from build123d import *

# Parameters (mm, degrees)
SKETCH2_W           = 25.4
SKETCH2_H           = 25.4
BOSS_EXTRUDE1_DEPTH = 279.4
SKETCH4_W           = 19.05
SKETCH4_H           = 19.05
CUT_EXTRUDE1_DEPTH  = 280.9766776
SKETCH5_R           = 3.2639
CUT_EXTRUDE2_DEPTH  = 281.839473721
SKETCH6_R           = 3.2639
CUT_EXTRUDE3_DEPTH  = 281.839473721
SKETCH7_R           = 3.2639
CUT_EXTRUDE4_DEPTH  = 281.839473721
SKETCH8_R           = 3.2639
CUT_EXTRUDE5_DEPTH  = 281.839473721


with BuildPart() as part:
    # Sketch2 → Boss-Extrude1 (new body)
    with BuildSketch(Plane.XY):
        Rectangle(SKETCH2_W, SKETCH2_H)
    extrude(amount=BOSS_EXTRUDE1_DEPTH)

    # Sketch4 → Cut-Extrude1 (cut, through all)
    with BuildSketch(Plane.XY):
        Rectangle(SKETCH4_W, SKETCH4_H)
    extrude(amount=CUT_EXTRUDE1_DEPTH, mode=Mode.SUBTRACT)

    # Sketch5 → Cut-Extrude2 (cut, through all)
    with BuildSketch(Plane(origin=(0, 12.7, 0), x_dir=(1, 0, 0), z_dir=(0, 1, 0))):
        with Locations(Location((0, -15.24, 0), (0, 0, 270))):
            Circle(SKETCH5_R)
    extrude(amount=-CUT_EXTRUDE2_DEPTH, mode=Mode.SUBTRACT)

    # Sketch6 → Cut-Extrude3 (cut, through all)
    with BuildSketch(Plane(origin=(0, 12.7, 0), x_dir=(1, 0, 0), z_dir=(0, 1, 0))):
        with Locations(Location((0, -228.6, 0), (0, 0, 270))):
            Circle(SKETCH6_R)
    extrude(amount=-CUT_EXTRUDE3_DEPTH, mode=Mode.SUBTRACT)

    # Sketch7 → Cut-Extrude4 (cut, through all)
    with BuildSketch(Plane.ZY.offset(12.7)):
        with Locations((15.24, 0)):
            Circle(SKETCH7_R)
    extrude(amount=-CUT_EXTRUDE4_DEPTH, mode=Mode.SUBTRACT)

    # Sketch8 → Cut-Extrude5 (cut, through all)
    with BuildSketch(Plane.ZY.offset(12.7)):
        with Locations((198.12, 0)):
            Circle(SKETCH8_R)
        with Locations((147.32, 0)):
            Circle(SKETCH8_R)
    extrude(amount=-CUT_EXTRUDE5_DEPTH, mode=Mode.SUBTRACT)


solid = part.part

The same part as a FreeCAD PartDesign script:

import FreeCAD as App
import Part
import Sketcher

V = App.Vector
Q = App.Units.Quantity


def add_polygon(sketch, points):
    """Adds a closed chain of lines whose ends are joined by coincident constraints."""
    first, n = sketch.GeometryCount, len(points)
    for a, b in zip(points, points[1:] + points[:1]):
        sketch.addGeometry(Part.LineSegment(App.Vector(*a, 0), App.Vector(*b, 0)), False)
    for i in range(n):
        sketch.addConstraint(Sketcher.Constraint("Coincident", first + i, 2, first + (i + 1) % n, 1))

doc = App.newDocument("Part")
body = doc.addObject("PartDesign::Body", "Body")

# Sketch on XY plane
sketch1 = body.newObject("Sketcher::SketchObject", "Sketch")
sketch1.AttachmentSupport = (doc.getObject("XY_Plane"), [""])
sketch1.MapMode = "FlatFace"
add_polygon(sketch1, [(-13, 13), (-13, -13), (13, -13), (13, 13)])  # lines 0-3
sketch1.addConstraint([
    Sketcher.Constraint("Vertical", 0),
    Sketcher.Constraint("Horizontal", 1),
    Sketcher.Constraint("Vertical", 2),
    Sketcher.Constraint("Horizontal", 3),
    Sketcher.Constraint("Symmetric", 0, 2, 2, 2, -1, 1),
    Sketcher.Constraint("Equal", 3, 0),
    Sketcher.Constraint("DistanceX", 1, 1, 1, 2, Q("1 in")),
])
pad1 = body.newObject("PartDesign::Pad", "Pad")
pad1.Profile = sketch1
pad1.Length = Q("11 in")

# Sketch on XY plane
sketch2 = body.newObject("Sketcher::SketchObject", "Sketch001")
sketch2.AttachmentSupport = (doc.getObject("XY_Plane"), [""])
sketch2.MapMode = "FlatFace"
add_polygon(sketch2, [(-10, 10), (-10, -10), (10, -10), (10, 10)])  # lines 0-3
sketch2.addConstraint([
    Sketcher.Constraint("Vertical", 0),
    Sketcher.Constraint("Horizontal", 1),
    Sketcher.Constraint("Vertical", 2),
    Sketcher.Constraint("Horizontal", 3),
    Sketcher.Constraint("Symmetric", 0, 2, 2, 2, -1, 1),
    Sketcher.Constraint("Equal", 3, 0),
    Sketcher.Constraint("DistanceX", 1, 1, 1, 2, Q("0.75 in")),
])
pocket1 = body.newObject("PartDesign::Pocket", "Pocket")
pocket1.Profile = sketch2
pocket1.Type = "ThroughAll"
pocket1.Reversed = True

# Sketch on XZ plane
sketch3 = body.newObject("Sketcher::SketchObject", "Sketch002")
sketch3.AttachmentSupport = (doc.getObject("XZ_Plane"), [""])
sketch3.MapMode = "FlatFace"
sketch3.AttachmentOffset = App.Placement(V(0, 0, -0.5 * 25.4), App.Rotation())
sketch3.addGeometry(Part.Circle(V(0, 15.2, 0), V(0, 0, 1), 3.3), False)
sketch3.addConstraint([
    Sketcher.Constraint("PointOnObject", 0, 3, -2),
    Sketcher.Constraint("Diameter", 0, Q("0.257 in")),
    Sketcher.Constraint("DistanceY", -1, 1, 0, 3, Q("0.6 in")),
])
pocket2 = body.newObject("PartDesign::Pocket", "Pocket001")
pocket2.Profile = sketch3
pocket2.Type = "ThroughAll"
pocket2.Reversed = True

# Sketch on XZ plane
sketch4 = body.newObject("Sketcher::SketchObject", "Sketch003")
sketch4.AttachmentSupport = (doc.getObject("XZ_Plane"), [""])
sketch4.MapMode = "FlatFace"
sketch4.AttachmentOffset = App.Placement(V(0, 0, -0.5 * 25.4), App.Rotation())
sketch4.addGeometry(Part.Circle(V(0, 228.6, 0), V(0, 0, 1), 3.3), False)
sketch4.addConstraint([
    Sketcher.Constraint("PointOnObject", 0, 3, -2),
    Sketcher.Constraint("Diameter", 0, Q("0.257 in")),
    Sketcher.Constraint("DistanceY", -1, 1, 0, 3, Q("9 in")),
])
pocket3 = body.newObject("PartDesign::Pocket", "Pocket002")
pocket3.Profile = sketch4
pocket3.Type = "ThroughAll"
pocket3.Reversed = True

# Sketch on YZ plane
sketch5 = body.newObject("Sketcher::SketchObject", "Sketch004")
sketch5.AttachmentSupport = (doc.getObject("YZ_Plane"), [""])
sketch5.MapMode = "FlatFace"
sketch5.AttachmentOffset = App.Placement(V(0, 0, -0.5 * 25.4), App.Rotation())
sketch5.addGeometry(Part.Circle(V(0, 15.2, 0), V(0, 0, 1), 3.3), False)
sketch5.addConstraint([
    Sketcher.Constraint("PointOnObject", 0, 3, -2),
    Sketcher.Constraint("Diameter", 0, Q("0.257 in")),
    Sketcher.Constraint("DistanceY", -1, 1, 0, 3, Q("0.6 in")),
])
pocket4 = body.newObject("PartDesign::Pocket", "Pocket003")
pocket4.Profile = sketch5
pocket4.Type = "ThroughAll"
pocket4.Reversed = True

# Sketch on YZ plane
sketch6 = body.newObject("Sketcher::SketchObject", "Sketch005")
sketch6.AttachmentSupport = (doc.getObject("YZ_Plane"), [""])
sketch6.MapMode = "FlatFace"
sketch6.AttachmentOffset = App.Placement(V(0, 0, -0.5 * 25.4), App.Rotation())
sketch6.addGeometry([
    Part.Circle(V(0, 198.1, 0), V(0, 0, 1), 3.3),
    Part.Circle(V(0, 147.3, 0), V(0, 0, 1), 3.3),
], False)
sketch6.addConstraint([
    Sketcher.Constraint("Equal", 0, 1),
    Sketcher.Constraint("PointOnObject", 0, 3, -2),
    Sketcher.Constraint("PointOnObject", 1, 3, -2),
    Sketcher.Constraint("Diameter", 0, Q("0.257 in")),
    Sketcher.Constraint("DistanceY", 1, 3, 0, 3, Q("2 in")),
    Sketcher.Constraint("DistanceY", -1, 1, 0, 3, Q("7.8 in")),
])
pocket5 = body.newObject("PartDesign::Pocket", "Pocket004")
pocket5.Profile = sketch6
pocket5.Type = "ThroughAll"
pocket5.Reversed = True

doc.recompute()
